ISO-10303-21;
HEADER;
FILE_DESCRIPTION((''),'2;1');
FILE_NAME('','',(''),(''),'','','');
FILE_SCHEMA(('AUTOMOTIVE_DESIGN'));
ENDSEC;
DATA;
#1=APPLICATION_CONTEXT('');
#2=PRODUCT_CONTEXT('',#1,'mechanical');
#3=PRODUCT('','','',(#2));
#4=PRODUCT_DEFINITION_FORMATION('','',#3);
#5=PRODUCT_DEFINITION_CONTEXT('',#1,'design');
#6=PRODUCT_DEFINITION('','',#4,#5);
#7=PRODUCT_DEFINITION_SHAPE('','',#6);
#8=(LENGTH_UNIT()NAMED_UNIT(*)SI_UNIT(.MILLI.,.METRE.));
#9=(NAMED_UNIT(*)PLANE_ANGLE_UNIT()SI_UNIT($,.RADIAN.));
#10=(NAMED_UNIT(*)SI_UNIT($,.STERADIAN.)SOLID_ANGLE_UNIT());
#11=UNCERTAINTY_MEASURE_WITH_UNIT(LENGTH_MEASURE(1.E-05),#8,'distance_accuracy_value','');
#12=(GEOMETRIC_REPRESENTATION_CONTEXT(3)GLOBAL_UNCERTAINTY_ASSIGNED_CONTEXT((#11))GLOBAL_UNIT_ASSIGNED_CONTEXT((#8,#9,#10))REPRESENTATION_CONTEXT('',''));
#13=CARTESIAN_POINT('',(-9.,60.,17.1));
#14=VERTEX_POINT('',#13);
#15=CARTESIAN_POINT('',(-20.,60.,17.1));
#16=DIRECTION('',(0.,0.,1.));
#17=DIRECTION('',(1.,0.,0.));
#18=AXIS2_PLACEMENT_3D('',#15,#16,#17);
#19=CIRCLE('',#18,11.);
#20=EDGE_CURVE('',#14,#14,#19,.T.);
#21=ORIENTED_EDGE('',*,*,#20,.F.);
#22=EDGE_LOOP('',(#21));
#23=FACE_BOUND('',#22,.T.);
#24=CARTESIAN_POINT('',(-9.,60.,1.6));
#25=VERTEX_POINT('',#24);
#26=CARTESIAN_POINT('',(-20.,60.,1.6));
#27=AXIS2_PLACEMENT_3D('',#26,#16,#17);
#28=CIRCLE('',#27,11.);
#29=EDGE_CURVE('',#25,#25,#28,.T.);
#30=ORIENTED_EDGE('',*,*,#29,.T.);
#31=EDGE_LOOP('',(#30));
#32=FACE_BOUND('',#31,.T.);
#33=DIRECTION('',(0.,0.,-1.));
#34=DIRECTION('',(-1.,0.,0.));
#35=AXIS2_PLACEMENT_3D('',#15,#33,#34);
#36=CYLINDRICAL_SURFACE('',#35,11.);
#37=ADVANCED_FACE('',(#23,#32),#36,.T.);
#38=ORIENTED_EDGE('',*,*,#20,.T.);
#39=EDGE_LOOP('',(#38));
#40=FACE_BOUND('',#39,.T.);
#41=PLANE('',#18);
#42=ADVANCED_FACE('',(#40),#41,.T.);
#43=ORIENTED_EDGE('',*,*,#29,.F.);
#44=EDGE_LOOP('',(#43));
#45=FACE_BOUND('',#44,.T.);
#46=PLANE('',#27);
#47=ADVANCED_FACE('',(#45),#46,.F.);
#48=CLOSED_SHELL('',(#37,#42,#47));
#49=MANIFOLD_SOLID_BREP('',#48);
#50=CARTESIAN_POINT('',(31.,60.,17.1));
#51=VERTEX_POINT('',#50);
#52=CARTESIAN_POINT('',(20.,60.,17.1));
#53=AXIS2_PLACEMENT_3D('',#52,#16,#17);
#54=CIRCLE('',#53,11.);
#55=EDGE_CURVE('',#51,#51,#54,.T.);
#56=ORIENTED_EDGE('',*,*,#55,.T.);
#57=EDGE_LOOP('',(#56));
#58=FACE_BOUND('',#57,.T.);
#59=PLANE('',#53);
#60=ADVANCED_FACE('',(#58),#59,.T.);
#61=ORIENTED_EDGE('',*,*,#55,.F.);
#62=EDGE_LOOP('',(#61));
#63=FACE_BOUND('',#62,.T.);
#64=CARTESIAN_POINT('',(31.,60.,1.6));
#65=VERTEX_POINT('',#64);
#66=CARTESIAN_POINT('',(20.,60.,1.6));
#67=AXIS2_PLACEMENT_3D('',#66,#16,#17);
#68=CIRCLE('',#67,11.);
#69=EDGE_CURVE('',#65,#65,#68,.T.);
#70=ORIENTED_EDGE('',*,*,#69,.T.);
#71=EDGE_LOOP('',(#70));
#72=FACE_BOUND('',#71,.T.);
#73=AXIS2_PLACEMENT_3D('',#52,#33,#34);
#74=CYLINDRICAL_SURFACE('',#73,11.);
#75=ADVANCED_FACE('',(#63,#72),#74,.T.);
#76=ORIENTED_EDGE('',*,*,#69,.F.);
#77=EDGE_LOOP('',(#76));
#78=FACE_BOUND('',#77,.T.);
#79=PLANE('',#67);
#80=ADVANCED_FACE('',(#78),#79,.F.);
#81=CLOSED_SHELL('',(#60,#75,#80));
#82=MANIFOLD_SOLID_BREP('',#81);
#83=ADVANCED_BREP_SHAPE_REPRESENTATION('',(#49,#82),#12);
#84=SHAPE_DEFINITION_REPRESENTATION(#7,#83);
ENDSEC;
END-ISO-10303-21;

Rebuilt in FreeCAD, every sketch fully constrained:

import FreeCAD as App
import Part
import Sketcher

V = App.Vector

doc = App.newDocument("Part")
body = doc.addObject("PartDesign::Body", "Body")

# Sketch on XY plane
sketch1 = body.newObject("Sketcher::SketchObject", "Sketch")
sketch1.AttachmentSupport = (doc.getObject("XY_Plane"), [""])
sketch1.MapMode = "FlatFace"
sketch1.AttachmentOffset = App.Placement(V(0, 0, 1.6), App.Rotation())
sketch1.addGeometry(Part.Circle(V(-20, 60, 0), V(0, 0, 1), 11), False)
sketch1.addConstraint(Sketcher.Constraint("Diameter", 0, 22.0))
sketch1.addConstraint(Sketcher.Constraint("DistanceX", 0, 3, -1, 1, 20.0))
sketch1.addConstraint(Sketcher.Constraint("DistanceY", -1, 1, 0, 3, 60.0))
pad1 = body.newObject("PartDesign::Pad", "Pad")
pad1.Profile = sketch1
pad1.Length = 15.5
body2 = doc.addObject("PartDesign::Body", "Body001")

# Sketch on XY plane
sketch2 = body2.newObject("Sketcher::SketchObject", "Sketch001")
sketch2.AttachmentSupport = (doc.getObject("XY_Plane001"), [""])
sketch2.MapMode = "FlatFace"
sketch2.AttachmentOffset = App.Placement(V(0, 0, 1.6), App.Rotation())
sketch2.addGeometry(Part.Circle(V(20, 60, 0), V(0, 0, 1), 11), False)
sketch2.addConstraint(Sketcher.Constraint("Diameter", 0, 22.0))
sketch2.addConstraint(Sketcher.Constraint("DistanceX", -1, 1, 0, 3, 20.0))
sketch2.addConstraint(Sketcher.Constraint("DistanceY", -1, 1, 0, 3, 60.0))
pad2 = body2.newObject("PartDesign::Pad", "Pad001")
pad2.Profile = sketch2
pad2.Length = 15.5

doc.recompute()
